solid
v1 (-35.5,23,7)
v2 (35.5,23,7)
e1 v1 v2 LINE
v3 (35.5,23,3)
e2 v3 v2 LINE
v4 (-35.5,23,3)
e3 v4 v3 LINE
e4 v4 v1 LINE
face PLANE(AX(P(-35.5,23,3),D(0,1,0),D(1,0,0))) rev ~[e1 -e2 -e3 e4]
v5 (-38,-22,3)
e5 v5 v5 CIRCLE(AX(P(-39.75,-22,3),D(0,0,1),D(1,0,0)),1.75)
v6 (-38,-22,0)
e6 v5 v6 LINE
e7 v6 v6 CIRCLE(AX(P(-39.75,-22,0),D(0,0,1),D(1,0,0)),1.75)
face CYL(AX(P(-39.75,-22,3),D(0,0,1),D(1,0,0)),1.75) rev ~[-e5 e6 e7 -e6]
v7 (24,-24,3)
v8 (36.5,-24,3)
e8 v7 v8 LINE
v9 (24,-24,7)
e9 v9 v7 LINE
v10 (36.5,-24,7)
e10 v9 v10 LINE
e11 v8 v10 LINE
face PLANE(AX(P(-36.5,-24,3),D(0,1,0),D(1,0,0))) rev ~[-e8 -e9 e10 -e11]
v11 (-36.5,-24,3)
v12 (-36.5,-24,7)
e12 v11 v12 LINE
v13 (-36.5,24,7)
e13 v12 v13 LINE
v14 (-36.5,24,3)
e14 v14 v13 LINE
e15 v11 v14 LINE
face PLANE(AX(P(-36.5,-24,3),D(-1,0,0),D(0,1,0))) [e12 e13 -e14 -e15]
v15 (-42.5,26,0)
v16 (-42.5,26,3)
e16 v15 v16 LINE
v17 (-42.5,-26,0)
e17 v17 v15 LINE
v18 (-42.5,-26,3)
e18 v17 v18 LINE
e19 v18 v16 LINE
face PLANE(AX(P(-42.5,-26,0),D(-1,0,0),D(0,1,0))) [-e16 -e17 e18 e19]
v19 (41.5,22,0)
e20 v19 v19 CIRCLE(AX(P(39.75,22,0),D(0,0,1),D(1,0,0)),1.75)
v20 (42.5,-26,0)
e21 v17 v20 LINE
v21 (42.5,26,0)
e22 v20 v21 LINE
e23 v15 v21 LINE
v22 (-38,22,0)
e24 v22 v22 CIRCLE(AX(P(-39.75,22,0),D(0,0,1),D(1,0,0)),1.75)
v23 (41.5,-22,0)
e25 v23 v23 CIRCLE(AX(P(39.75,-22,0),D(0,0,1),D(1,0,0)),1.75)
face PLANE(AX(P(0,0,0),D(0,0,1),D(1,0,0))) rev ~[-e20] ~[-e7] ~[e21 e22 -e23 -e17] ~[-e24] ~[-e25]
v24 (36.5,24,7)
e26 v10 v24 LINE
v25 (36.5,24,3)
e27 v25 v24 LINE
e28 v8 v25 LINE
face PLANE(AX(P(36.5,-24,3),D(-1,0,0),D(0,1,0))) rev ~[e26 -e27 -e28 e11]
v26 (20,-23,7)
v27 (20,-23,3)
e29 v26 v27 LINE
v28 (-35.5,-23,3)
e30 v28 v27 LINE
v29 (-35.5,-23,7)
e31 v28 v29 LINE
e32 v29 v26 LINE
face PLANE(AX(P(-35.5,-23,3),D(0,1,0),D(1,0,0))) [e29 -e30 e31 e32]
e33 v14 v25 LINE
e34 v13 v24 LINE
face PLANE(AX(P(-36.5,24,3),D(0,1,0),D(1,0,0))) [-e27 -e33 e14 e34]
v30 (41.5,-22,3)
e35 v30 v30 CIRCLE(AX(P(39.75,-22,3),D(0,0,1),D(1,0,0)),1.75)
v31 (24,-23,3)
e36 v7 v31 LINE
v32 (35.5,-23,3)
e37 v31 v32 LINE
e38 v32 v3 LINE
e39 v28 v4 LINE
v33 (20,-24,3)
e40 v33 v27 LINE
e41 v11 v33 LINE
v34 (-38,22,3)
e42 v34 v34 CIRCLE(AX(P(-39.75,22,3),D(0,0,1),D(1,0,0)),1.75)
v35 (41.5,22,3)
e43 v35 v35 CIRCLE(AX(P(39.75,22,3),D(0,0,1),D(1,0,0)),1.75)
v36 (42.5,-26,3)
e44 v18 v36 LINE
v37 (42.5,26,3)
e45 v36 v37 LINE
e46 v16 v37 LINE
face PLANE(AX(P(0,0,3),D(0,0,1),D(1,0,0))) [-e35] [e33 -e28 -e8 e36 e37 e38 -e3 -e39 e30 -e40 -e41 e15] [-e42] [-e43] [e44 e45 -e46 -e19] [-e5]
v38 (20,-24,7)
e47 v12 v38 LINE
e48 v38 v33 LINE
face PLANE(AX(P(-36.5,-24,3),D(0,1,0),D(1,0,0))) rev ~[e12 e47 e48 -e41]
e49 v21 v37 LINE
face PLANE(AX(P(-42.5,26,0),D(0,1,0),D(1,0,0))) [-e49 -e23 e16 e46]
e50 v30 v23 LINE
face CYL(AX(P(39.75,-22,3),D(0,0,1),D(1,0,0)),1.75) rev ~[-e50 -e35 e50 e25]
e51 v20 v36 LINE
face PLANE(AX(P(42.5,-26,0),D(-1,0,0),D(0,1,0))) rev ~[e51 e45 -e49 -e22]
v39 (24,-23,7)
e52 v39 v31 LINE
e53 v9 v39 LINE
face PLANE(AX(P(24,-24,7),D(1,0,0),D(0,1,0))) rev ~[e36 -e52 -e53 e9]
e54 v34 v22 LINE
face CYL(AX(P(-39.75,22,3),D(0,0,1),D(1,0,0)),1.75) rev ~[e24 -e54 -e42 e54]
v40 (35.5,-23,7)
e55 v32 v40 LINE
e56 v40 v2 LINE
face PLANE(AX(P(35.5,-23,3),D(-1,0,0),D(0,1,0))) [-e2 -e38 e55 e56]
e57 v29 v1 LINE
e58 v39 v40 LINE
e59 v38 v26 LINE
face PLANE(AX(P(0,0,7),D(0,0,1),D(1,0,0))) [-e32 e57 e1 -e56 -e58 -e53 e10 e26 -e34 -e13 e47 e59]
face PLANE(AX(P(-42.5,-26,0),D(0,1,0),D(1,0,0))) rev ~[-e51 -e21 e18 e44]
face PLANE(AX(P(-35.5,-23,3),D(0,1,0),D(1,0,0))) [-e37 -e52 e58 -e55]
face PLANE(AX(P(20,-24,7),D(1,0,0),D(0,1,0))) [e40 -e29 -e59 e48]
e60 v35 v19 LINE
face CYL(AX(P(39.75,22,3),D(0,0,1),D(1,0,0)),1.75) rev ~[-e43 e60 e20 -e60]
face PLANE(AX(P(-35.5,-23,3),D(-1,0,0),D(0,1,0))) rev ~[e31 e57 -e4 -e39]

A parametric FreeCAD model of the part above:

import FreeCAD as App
import Part
import Sketcher

V = App.Vector
Q = App.Units.Quantity


def add_polygon(sketch, points):
    """Adds a closed chain of lines whose ends are joined by coincident constraints."""
    first, n = sketch.GeometryCount, len(points)
    for a, b in zip(points, points[1:] + points[:1]):
        sketch.addGeometry(Part.LineSegment(App.Vector(*a, 0), App.Vector(*b, 0)), False)
    for i in range(n):
        sketch.addConstraint(Sketcher.Constraint("Coincident", first + i, 2, first + (i + 1) % n, 1))

doc = App.newDocument("Part")
body = doc.addObject("PartDesign::Body", "Body")

sketch1 = body.newObject("Sketcher::SketchObject", "Sketch")
sketch1.AttachmentSupport = (doc.getObject("XY_Plane"), [""])
sketch1.MapMode = "FlatFace"
add_polygon(sketch1, [(-42, 26), (-42, -26), (42, -26), (42, 26)])
sketch1.addConstraint([
    Sketcher.Constraint("Vertical", 0),
    Sketcher.Constraint("Horizontal", 1),
    Sketcher.Constraint("Vertical", 2),
    Sketcher.Constraint("Horizontal", 3),
    Sketcher.Constraint("Symmetric", 0, 2, 2, 2, -1, 1),
    Sketcher.Constraint("DistanceX", 1, 1, 1, 2, Q("85 mm")),
    Sketcher.Constraint("DistanceY", 0, 2, 0, 1, Q("52 mm")),
])
pad1 = body.newObject("PartDesign::Pad", "Pad")
pad1.Profile = sketch1
pad1.Length = 3

sketch2 = body.newObject("Sketcher::SketchObject", "Sketch001")
sketch2.AttachmentSupport = (doc.getObject("XY_Plane"), [""])
sketch2.MapMode = "FlatFace"
sketch2.AttachmentOffset = App.Placement(V(0, 0, 3), App.Rotation())
sketch2.addGeometry([
    Part.Circle(V(-39.8, 22, 0), V(0, 0, 1), 1.8),
    Part.Circle(V(-39.8, -22, 0), V(0, 0, 1), 1.8),
    Part.Circle(V(39.8, 22, 0), V(0, 0, 1), 1.8),
    Part.Circle(V(39.8, -22, 0), V(0, 0, 1), 1.8),
], False)
sketch2.addConstraint([
    Sketcher.Constraint("Equal", 0, 1),
    Sketcher.Constraint("Equal", 1, 2),
    Sketcher.Constraint("Equal", 2, 3),
    Sketcher.Constraint("Symmetric", 1, 3, 2, 3, -1, 1),
    Sketcher.Constraint("Symmetric", 0, 3, 3, 3, -1, 1),
    Sketcher.Constraint("Symmetric", 0, 3, 2, 3, -2),
    Sketcher.Constraint("Diameter", 0, Q("3.5 mm")),
    Sketcher.Constraint("DistanceY", -1, 1, 0, 3, Q("22 mm")),
    Sketcher.Constraint("DistanceX", 0, 3, 2, 3, Q("79.5 mm")),
])
pocket1 = body.newObject("PartDesign::Pocket", "Pocket")
pocket1.Profile = sketch2
pocket1.Length = 25

sketch3 = body.newObject("Sketcher::SketchObject", "Sketch002")
sketch3.AttachmentSupport = (doc.getObject("XY_Plane"), [""])
sketch3.MapMode = "FlatFace"
sketch3.AttachmentOffset = App.Placement(V(0, 0, 3), App.Rotation())
add_polygon(sketch3, [(-36, 24), (-36, -24), (36, -24), (36, 24)])
add_polygon(sketch3, [(36, -23), (-36, -23), (-36, 23), (36, 23)])
sketch3.addConstraint([
    Sketcher.Constraint("Vertical", 0),
    Sketcher.Constraint("Horizontal", 1),
    Sketcher.Constraint("Vertical", 2),
    Sketcher.Constraint("Horizontal", 3),
    Sketcher.Constraint("Horizontal", 4),
    Sketcher.Constraint("Vertical", 5),
    Sketcher.Constraint("Horizontal", 6),
    Sketcher.Constraint("Vertical", 7),
    Sketcher.Constraint("Symmetric", 0, 2, 2, 2, -1, 1),
    Sketcher.Constraint("Symmetric", 4, 2, 6, 2, -1, 1),
    Sketcher.Constraint("DistanceX", 1, 1, 1, 2, Q("73 mm")),
    Sketcher.Constraint("DistanceX", 4, 2, 4, 1, Q("71 mm")),
    Sketcher.Constraint("DistanceY", 0, 2, 0, 1, Q("48 mm")),
    Sketcher.Constraint("DistanceY", 5, 1, 5, 2, Q("46 mm")),
])
pad2 = body.newObject("PartDesign::Pad", "Pad001")
pad2.Profile = sketch3
pad2.Length = 4

sketch4 = body.newObject("Sketcher::SketchObject", "Sketch003")
sketch4.AttachmentSupport = (doc.getObject("XY_Plane"), [""])
sketch4.MapMode = "FlatFace"
sketch4.AttachmentOffset = App.Placement(V(0, 0, 7), App.Rotation())
add_polygon(sketch4, [(20, -23), (20, -24), (24, -24), (24, -23)])
sketch4.addConstraint([
    Sketcher.Constraint("Vertical", 0),
    Sketcher.Constraint("Horizontal", 1),
    Sketcher.Constraint("Vertical", 2),
    Sketcher.Constraint("Horizontal", 3),
    Sketcher.Constraint("DistanceX", 1, 1, 1, 2, Q("4 mm")),
    Sketcher.Constraint("DistanceY", 0, 2, 0, 1, Q("1 mm")),
    Sketcher.Constraint("DistanceX", -1, 1, 0, 2, Q("20 mm")),
    Sketcher.Constraint("DistanceY", 0, 2, -1, 1, Q("24 mm")),
])
pocket2 = body.newObject("PartDesign::Pocket", "Pocket001")
pocket2.Profile = sketch4
pocket2.Length = 4

doc.recompute()
